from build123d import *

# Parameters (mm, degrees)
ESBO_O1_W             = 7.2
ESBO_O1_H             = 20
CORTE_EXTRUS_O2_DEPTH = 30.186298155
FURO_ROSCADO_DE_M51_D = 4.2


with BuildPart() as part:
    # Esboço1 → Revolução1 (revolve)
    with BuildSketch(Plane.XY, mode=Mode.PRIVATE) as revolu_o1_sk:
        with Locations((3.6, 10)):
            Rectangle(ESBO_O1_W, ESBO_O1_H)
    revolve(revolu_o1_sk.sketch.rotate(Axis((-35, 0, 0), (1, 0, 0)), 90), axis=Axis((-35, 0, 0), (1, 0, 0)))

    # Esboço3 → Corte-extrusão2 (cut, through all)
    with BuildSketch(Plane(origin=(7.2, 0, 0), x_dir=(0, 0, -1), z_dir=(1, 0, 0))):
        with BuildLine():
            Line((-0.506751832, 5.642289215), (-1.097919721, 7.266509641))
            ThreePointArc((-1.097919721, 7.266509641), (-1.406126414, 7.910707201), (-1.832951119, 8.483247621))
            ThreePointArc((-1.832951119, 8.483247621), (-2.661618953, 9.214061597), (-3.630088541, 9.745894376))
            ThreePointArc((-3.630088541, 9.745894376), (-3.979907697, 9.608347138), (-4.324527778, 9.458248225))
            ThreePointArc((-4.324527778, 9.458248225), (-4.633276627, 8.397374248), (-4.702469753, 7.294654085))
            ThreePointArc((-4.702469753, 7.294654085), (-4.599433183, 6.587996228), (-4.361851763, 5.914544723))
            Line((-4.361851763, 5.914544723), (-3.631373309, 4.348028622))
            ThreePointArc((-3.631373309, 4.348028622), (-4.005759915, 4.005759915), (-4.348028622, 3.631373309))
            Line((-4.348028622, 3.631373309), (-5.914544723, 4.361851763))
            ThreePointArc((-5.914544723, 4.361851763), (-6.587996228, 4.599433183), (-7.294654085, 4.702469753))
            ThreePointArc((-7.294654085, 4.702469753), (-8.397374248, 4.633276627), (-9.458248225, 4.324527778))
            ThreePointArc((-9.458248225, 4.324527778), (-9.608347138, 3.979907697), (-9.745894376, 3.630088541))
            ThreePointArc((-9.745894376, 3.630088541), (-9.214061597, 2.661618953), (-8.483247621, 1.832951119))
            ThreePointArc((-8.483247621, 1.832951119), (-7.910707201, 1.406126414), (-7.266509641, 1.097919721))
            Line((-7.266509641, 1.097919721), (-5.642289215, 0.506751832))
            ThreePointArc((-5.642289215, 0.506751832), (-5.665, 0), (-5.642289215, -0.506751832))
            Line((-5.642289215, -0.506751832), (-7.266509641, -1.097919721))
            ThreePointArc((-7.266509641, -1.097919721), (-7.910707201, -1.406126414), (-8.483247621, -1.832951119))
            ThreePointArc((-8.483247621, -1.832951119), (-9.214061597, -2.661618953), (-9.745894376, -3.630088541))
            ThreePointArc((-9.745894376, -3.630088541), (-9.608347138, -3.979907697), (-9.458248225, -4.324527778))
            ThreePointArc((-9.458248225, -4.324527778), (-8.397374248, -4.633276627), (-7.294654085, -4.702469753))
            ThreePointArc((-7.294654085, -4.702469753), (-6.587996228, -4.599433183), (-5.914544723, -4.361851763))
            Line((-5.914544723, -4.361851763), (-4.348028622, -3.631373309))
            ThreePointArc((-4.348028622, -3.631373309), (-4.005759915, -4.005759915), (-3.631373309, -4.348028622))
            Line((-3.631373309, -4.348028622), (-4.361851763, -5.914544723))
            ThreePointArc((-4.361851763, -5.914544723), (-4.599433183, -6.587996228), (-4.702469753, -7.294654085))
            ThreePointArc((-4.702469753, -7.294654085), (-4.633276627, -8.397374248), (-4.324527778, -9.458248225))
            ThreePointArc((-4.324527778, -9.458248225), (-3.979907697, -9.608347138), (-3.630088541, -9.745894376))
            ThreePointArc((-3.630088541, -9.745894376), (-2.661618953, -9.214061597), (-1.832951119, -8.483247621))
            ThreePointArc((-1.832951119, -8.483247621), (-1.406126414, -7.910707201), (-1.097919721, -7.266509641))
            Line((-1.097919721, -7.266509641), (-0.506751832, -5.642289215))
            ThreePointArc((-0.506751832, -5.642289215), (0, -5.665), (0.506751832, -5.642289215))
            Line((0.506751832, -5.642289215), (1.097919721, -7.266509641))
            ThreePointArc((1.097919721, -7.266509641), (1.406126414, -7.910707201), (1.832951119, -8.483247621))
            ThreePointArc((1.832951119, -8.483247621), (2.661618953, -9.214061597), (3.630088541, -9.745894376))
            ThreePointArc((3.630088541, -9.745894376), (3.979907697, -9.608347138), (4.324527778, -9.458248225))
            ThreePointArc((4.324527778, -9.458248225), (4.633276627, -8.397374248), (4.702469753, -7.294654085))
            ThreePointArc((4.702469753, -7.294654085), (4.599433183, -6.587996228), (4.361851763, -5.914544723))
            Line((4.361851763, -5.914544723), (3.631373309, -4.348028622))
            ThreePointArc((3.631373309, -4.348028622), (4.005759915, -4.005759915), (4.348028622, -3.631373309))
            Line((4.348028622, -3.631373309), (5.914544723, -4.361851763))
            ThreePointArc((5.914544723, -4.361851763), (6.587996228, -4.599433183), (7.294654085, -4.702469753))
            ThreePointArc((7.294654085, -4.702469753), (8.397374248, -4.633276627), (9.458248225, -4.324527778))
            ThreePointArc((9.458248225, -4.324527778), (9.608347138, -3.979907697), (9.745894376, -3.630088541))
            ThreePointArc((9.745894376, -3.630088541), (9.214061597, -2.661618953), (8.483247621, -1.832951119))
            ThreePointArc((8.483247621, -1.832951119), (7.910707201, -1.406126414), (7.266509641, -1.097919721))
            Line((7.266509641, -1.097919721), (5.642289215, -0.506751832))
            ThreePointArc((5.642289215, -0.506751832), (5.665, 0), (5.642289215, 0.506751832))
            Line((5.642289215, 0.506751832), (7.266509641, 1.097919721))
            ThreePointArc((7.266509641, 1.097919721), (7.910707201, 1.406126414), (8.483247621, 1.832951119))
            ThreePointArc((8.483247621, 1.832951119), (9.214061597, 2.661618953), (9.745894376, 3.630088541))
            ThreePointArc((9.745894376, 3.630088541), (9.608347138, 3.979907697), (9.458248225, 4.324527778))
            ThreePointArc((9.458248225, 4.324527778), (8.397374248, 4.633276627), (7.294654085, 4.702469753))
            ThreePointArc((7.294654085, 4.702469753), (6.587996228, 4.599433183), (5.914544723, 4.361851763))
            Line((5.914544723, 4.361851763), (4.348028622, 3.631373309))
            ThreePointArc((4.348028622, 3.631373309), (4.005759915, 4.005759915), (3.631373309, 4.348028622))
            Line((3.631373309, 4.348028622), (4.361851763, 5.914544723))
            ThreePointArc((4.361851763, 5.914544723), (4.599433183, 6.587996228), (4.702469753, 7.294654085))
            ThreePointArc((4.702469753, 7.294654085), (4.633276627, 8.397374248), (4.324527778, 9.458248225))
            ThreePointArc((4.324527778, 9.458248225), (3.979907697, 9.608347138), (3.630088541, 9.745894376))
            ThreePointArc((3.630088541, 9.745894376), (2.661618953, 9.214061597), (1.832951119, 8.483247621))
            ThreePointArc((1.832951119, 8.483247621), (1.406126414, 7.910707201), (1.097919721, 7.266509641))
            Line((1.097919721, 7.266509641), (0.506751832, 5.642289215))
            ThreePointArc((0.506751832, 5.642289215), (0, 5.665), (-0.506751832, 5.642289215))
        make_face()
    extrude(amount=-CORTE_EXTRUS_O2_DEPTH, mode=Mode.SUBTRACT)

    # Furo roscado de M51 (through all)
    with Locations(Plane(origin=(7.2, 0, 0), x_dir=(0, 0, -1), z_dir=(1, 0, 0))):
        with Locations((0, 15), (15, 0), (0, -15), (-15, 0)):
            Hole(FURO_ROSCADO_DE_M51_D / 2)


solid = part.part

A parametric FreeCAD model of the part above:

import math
import FreeCAD as App
import Part
import Sketcher
from FreeCAD import Vector
Q = App.Units.Quantity


def add_polygon(sketch, points):
    """Adds a closed chain of lines whose ends are joined by coincident constraints."""
    first, n = sketch.GeometryCount, len(points)
    for a, b in zip(points, points[1:] + points[:1]):
        sketch.addGeometry(Part.LineSegment(App.Vector(*a, 0), App.Vector(*b, 0)), False)
    for i in range(n):
        sketch.addConstraint(Sketcher.Constraint("Coincident", first + i, 2, first + (i + 1) % n, 1))

doc = App.newDocument("Part")
body = doc.addObject("PartDesign::Body", "Body")

# Sketch on XY plane
sketch1 = body.newObject("Sketcher::SketchObject", "Sketch")
sketch1.AttachmentSupport = (doc.getObject("XY_Plane"), [""])
sketch1.MapMode = "FlatFace"
add_polygon(sketch1, [(0, 20), (0, 0), (7, 0), (7, 20)])  # lines 0-3
sketch1.addConstraint(Sketcher.Constraint("Vertical", 0))
sketch1.addConstraint(Sketcher.Constraint("Horizontal", 1))
sketch1.addConstraint(Sketcher.Constraint("Vertical", 2))
sketch1.addConstraint(Sketcher.Constraint("Horizontal", 3))
sketch1.addConstraint(Sketcher.Constraint("Coincident", 0, 2, -1, 1))
sketch1.addConstraint(Sketcher.Constraint("DistanceY", 0, 2, 0, 1, 20.0))
sketch1.addConstraint(Sketcher.Constraint("DistanceX", 1, 1, 1, 2, 7.2))
revolution = body.newObject("PartDesign::Revolution", "Revolution")
revolution.Profile = sketch1
revolution.ReferenceAxis = (sketch1, ["H_Axis"])
revolution.Angle = 360

# Sketch on YZ plane
sketch2 = body.newObject("Sketcher::SketchObject", "Sketch001")
sketch2.AttachmentSupport = (doc.getObject("YZ_Plane"), [""])
sketch2.MapMode = "FlatFace"
sketch2.AttachmentOffset = App.Placement(Vector(0, 0, 7.2), App.Rotation())
sketch2.addGeometry(Part.LineSegment(Vector(5.6, 0.5, 0), Vector(7.3, 1.1, 0)), False)
sketch2.addGeometry(Part.ArcOfCircle(Part.Circle(Vector(6, 4.6, 0), Vector(0, 0, 1), 3.7), math.radians(-70), math.radians(-48)), False)
sketch2.addGeometry(Part.ArcOfCircle(Part.Circle(Vector(5.1, 5.5, 0), Vector(0, 0, 1), 5), math.radians(-48), math.radians(-22)), False)
sketch2.addGeometry(Part.ArcOfCircle(Part.Circle(Vector(0, 0, 0), Vector(0, 0, 1), 10.4), math.radians(20.43), math.radians(24.57)), False)
sketch2.addGeometry(Part.ArcOfCircle(Part.Circle(Vector(7.5, -0.3, 0), Vector(0, 0, 1), 5), math.radians(67), math.radians(93)), False)
sketch2.addGeometry(Part.ArcOfCircle(Part.Circle(Vector(7.5, 1, 0), Vector(0, 0, 1), 3.7), math.radians(93), math.radians(115)), False)
sketch2.addGeometry(Part.LineSegment(Vector(5.9, 4.4, 0), Vector(4.3, 3.6, 0)), False)
sketch2.addGeometry(Part.ArcOfCircle(Part.Circle(Vector(0, 0, 0), Vector(0, 0, 1), 5.7), math.radians(39.87), math.radians(50.13)), False)
sketch2.addGeometry(Part.LineSegment(Vector(3.6, 4.3, 0), Vector(4.4, 5.9, 0)), False)
sketch2.addGeometry(Part.ArcOfCircle(Part.Circle(Vector(1, 7.5, 0), Vector(0, 0, 1), 3.7), math.radians(-25), math.radians(-3)), False)
sketch2.addGeometry(Part.ArcOfCircle(Part.Circle(Vector(-0.3, 7.5, 0), Vector(0, 0, 1), 5), math.radians(-3), math.radians(23)), False)
sketch2.addGeometry(Part.ArcOfCircle(Part.Circle(Vector(0, 0, 0), Vector(0, 0, 1), 10.4), math.radians(65.43), math.radians(69.57)), False)
sketch2.addGeometry(Part.ArcOfCircle(Part.Circle(Vector(5.5, 5.1, 0), Vector(0, 0, 1), 5), math.radians(112), math.radians(138)), False)
sketch2.addGeometry(Part.ArcOfCircle(Part.Circle(Vector(4.6, 6, 0), Vector(0, 0, 1), 3.7), math.radians(138), math.radians(160)), False)
sketch2.addGeometry(Part.LineSegment(Vector(1.1, 7.3, 0), Vector(0.5, 5.6, 0)), False)
sketch2.addGeometry(Part.ArcOfCircle(Part.Circle(Vector(0, 0, 0), Vector(0, 0, 1), 5.7), math.radians(84.87), math.radians(95.13)), False)
sketch2.addGeometry(Part.LineSegment(Vector(-0.5, 5.6, 0), Vector(-1.1, 7.3, 0)), False)
sketch2.addGeometry(Part.ArcOfCircle(Part.Circle(Vector(-4.6, 6, 0), Vector(0, 0, 1), 3.7), math.radians(20), math.radians(42)), False)
sketch2.addGeometry(Part.ArcOfCircle(Part.Circle(Vector(-5.5, 5.1, 0), Vector(0, 0, 1), 5), math.radians(42), math.radians(68)), False)
sketch2.addGeometry(Part.ArcOfCircle(Part.Circle(Vector(0, 0, 0), Vector(0, 0, 1), 10.4), math.radians(110.43), math.radians(114.57)), False)
sketch2.addGeometry(Part.ArcOfCircle(Part.Circle(Vector(0.3, 7.5, 0), Vector(0, 0, 1), 5), math.radians(157), math.radians(183)), False)
sketch2.addGeometry(Part.ArcOfCircle(Part.Circle(Vector(-1, 7.5, 0), Vector(0, 0, 1), 3.7), math.radians(-177), math.radians(-155)), False)
sketch2.addGeometry(Part.LineSegment(Vector(-4.4, 5.9, 0), Vector(-3.6, 4.3, 0)), False)
sketch2.addGeometry(Part.ArcOfCircle(Part.Circle(Vector(0, 0, 0), Vector(0, 0, 1), 5.7), math.radians(129.87), math.radians(140.13)), False)
sketch2.addGeometry(Part.LineSegment(Vector(-4.3, 3.6, 0), Vector(-5.9, 4.4, 0)), False)
sketch2.addGeometry(Part.ArcOfCircle(Part.Circle(Vector(-7.5, 1, 0), Vector(0, 0, 1), 3.7), math.radians(65), math.radians(87)), False)
sketch2.addGeometry(Part.ArcOfCircle(Part.Circle(Vector(-7.5, -0.3, 0), Vector(0, 0, 1), 5), math.radians(87), math.radians(113)), False)
sketch2.addGeometry(Part.ArcOfCircle(Part.Circle(Vector(0, 0, 0), Vector(0, 0, 1), 10.4), math.radians(155.43), math.radians(159.57)), False)
sketch2.addGeometry(Part.ArcOfCircle(Part.Circle(Vector(-5.1, 5.5, 0), Vector(0, 0, 1), 5), math.radians(-158), math.radians(-132)), False)
sketch2.addGeometry(Part.ArcOfCircle(Part.Circle(Vector(-6, 4.6, 0), Vector(0, 0, 1), 3.7), math.radians(-132), math.radians(-110)), False)
sketch2.addGeometry(Part.LineSegment(Vector(-7.3, 1.1, 0), Vector(-5.6, 0.5, 0)), False)
sketch2.addGeometry(Part.ArcOfCircle(Part.Circle(Vector(0, 0, 0), Vector(0, 0, 1), 5.7), math.radians(174.87), math.radians(185.13)), False)
sketch2.addGeometry(Part.LineSegment(Vector(-5.6, -0.5, 0), Vector(-7.3, -1.1, 0)), False)
sketch2.addGeometry(Part.ArcOfCircle(Part.Circle(Vector(-6, -4.6, 0), Vector(0, 0, 1), 3.7), math.radians(110), math.radians(132)), False)
sketch2.addGeometry(Part.ArcOfCircle(Part.Circle(Vector(-5.1, -5.5, 0), Vector(0, 0, 1), 5), math.radians(132), math.radians(158)), False)
sketch2.addGeometry(Part.ArcOfCircle(Part.Circle(Vector(0, 0, 0), Vector(0, 0, 1), 10.4), math.radians(-159.57), math.radians(-155.43)), False)
sketch2.addGeometry(Part.ArcOfCircle(Part.Circle(Vector(-7.5, 0.3, 0), Vector(0, 0, 1), 5), math.radians(-113), math.radians(-87)), False)
sketch2.addGeometry(Part.ArcOfCircle(Part.Circle(Vector(-7.5, -1, 0), Vector(0, 0, 1), 3.7), math.radians(-87), math.radians(-65)), False)
sketch2.addGeometry(Part.LineSegment(Vector(-5.9, -4.4, 0), Vector(-4.3, -3.6, 0)), False)
sketch2.addGeometry(Part.ArcOfCircle(Part.Circle(Vector(0, 0, 0), Vector(0, 0, 1), 5.7), math.radians(-140.13), math.radians(-129.87)), False)
sketch2.addGeometry(Part.LineSegment(Vector(-3.6, -4.3, 0), Vector(-4.4, -5.9, 0)), False)
sketch2.addGeometry(Part.ArcOfCircle(Part.Circle(Vector(-1, -7.5, 0), Vector(0, 0, 1), 3.7), math.radians(155), math.radians(177)), False)
sketch2.addGeometry(Part.ArcOfCircle(Part.Circle(Vector(0.3, -7.5, 0), Vector(0, 0, 1), 5), math.radians(177), math.radians(203)), False)
sketch2.addGeometry(Part.ArcOfCircle(Part.Circle(Vector(0, 0, 0), Vector(0, 0, 1), 10.4), math.radians(-114.57), math.radians(-110.43)), False)
sketch2.addGeometry(Part.ArcOfCircle(Part.Circle(Vector(-5.5, -5.1, 0), Vector(0, 0, 1), 5), math.radians(-68), math.radians(-42)), False)
sketch2.addGeometry(Part.ArcOfCircle(Part.Circle(Vector(-4.6, -6, 0), Vector(0, 0, 1), 3.7), math.radians(-42), math.radians(-20)), False)
sketch2.addGeometry(Part.LineSegment(Vector(-1.1, -7.3, 0), Vector(-0.5, -5.6, 0)), False)
sketch2.addGeometry(Part.ArcOfCircle(Part.Circle(Vector(0, 0, 0), Vector(0, 0, 1), 5.7), math.radians(-95.13), math.radians(-84.87)), False)
sketch2.addGeometry(Part.LineSegment(Vector(0.5, -5.6, 0), Vector(1.1, -7.3, 0)), False)
sketch2.addGeometry(Part.ArcOfCircle(Part.Circle(Vector(4.6, -6, 0), Vector(0, 0, 1), 3.7), math.radians(-160), math.radians(-138)), False)
sketch2.addGeometry(Part.ArcOfCircle(Part.Circle(Vector(5.5, -5.1, 0), Vector(0, 0, 1), 5), math.radians(-138), math.radians(-112)), False)
sketch2.addGeometry(Part.ArcOfCircle(Part.Circle(Vector(0, 0, 0), Vector(0, 0, 1), 10.4), math.radians(-69.57), math.radians(-65.43)), False)
sketch2.addGeometry(Part.ArcOfCircle(Part.Circle(Vector(-0.3, -7.5, 0), Vector(0, 0, 1), 5), math.radians(-23), math.radians(3)), False)
sketch2.addGeometry(Part.ArcOfCircle(Part.Circle(Vector(1, -7.5, 0), Vector(0, 0, 1), 3.7), math.radians(3), math.radians(25)), False)
sketch2.addGeometry(Part.LineSegment(Vector(4.4, -5.9, 0), Vector(3.6, -4.3, 0)), False)
sketch2.addGeometry(Part.ArcOfCircle(Part.Circle(Vector(0, 0, 0), Vector(0, 0, 1), 5.7), math.radians(-50.13), math.radians(-39.87)), False)
sketch2.addGeometry(Part.LineSegment(Vector(4.3, -3.6, 0), Vector(5.9, -4.4, 0)), False)
sketch2.addGeometry(Part.ArcOfCircle(Part.Circle(Vector(7.5, -1, 0), Vector(0, 0, 1), 3.7), math.radians(-115), math.radians(-93)), False)
sketch2.addGeometry(Part.ArcOfCircle(Part.Circle(Vector(7.5, 0.3, 0), Vector(0, 0, 1), 5), math.radians(-93), math.radians(-67)), False)
sketch2.addGeometry(Part.ArcOfCircle(Part.Circle(Vector(0, 0, 0), Vector(0, 0, 1), 10.4), math.radians(-24.57), math.radians(-20.43)), False)
sketch2.addGeometry(Part.ArcOfCircle(Part.Circle(Vector(5.1, -5.5, 0), Vector(0, 0, 1), 5), math.radians(22), math.radians(48)), False)
sketch2.addGeometry(Part.ArcOfCircle(Part.Circle(Vector(6, -4.6, 0), Vector(0, 0, 1), 3.7), math.radians(48), math.radians(70)), False)
sketch2.addGeometry(Part.LineSegment(Vector(7.3, -1.1, 0), Vector(5.6, -0.5, 0)), False)
sketch2.addGeometry(Part.ArcOfCircle(Part.Circle(Vector(0, 0, 0), Vector(0, 0, 1), 5.7), math.radians(-5.13), math.radians(5.13)), False)
sketch2.addConstraint(Sketcher.Constraint("Tangent", 0, 2, 1, 1))
sketch2.addConstraint(Sketcher.Constraint("Tangent", 1, 2, 2, 1))
sketch2.addConstraint(Sketcher.Constraint("Coincident", 2, 2, 3, 1))
sketch2.addConstraint(Sketcher.Constraint("Coincident", 3, 2, 4, 1))
sketch2.addConstraint(Sketcher.Constraint("Tangent", 4, 2, 5, 1))
sketch2.addConstraint(Sketcher.Constraint("Tangent", 5, 2, 6, 1))
sketch2.addConstraint(Sketcher.Constraint("Coincident", 6, 2, 7, 1))
sketch2.addConstraint(Sketcher.Constraint("Coincident", 7, 2, 8, 1))
sketch2.addConstraint(Sketcher.Constraint("Tangent", 8, 2, 9, 1))
sketch2.addConstraint(Sketcher.Constraint("Tangent", 9, 2, 10, 1))
sketch2.addConstraint(Sketcher.Constraint("Coincident", 10, 2, 11, 1))
sketch2.addConstraint(Sketcher.Constraint("Coincident", 11, 2, 12, 1))
sketch2.addConstraint(Sketcher.Constraint("Tangent", 12, 2, 13, 1))
sketch2.addConstraint(Sketcher.Constraint("Tangent", 13, 2, 14, 1))
sketch2.addConstraint(Sketcher.Constraint("Coincident", 14, 2, 15, 1))
sketch2.addConstraint(Sketcher.Constraint("Coincident", 15, 2, 16, 1))
sketch2.addConstraint(Sketcher.Constraint("Tangent", 16, 2, 17, 1))
sketch2.addConstraint(Sketcher.Constraint("Tangent", 17, 2, 18, 1))
sketch2.addConstraint(Sketcher.Constraint("Coincident", 18, 2, 19, 1))
sketch2.addConstraint(Sketcher.Constraint("Coincident", 19, 2, 20, 1))
sketch2.addConstraint(Sketcher.Constraint("Tangent", 20, 2, 21, 1))
sketch2.addConstraint(Sketcher.Constraint("Tangent", 21, 2, 22, 1))
sketch2.addConstraint(Sketcher.Constraint("Coincident", 22, 2, 23, 1))
sketch2.addConstraint(Sketcher.Constraint("Coincident", 23, 2, 24, 1))
sketch2.addConstraint(Sketcher.Constraint("Tangent", 24, 2, 25, 1))
sketch2.addConstraint(Sketcher.Constraint("Tangent", 25, 2, 26, 1))
sketch2.addConstraint(Sketcher.Constraint("Coincident", 26, 2, 27, 1))
sketch2.addConstraint(Sketcher.Constraint("Coincident", 27, 2, 28, 1))
sketch2.addConstraint(Sketcher.Constraint("Tangent", 28, 2, 29, 1))
sketch2.addConstraint(Sketcher.Constraint("Tangent", 29, 2, 30, 1))
sketch2.addConstraint(Sketcher.Constraint("Coincident", 30, 2, 31, 1))
sketch2.addConstraint(Sketcher.Constraint("Coincident", 31, 2, 32, 1))
sketch2.addConstraint(Sketcher.Constraint("Tangent", 32, 2, 33, 1))
sketch2.addConstraint(Sketcher.Constraint("Tangent", 33, 2, 34, 1))
sketch2.addConstraint(Sketcher.Constraint("Coincident", 34, 2, 35, 1))
sketch2.addConstraint(Sketcher.Constraint("Coincident", 35, 2, 36, 1))
sketch2.addConstraint(Sketcher.Constraint("Tangent", 36, 2, 37, 1))
sketch2.addConstraint(Sketcher.Constraint("Tangent", 37, 2, 38, 1))
sketch2.addConstraint(Sketcher.Constraint("Coincident", 38, 2, 39, 1))
sketch2.addConstraint(Sketcher.Constraint("Coincident", 39, 2, 40, 1))
sketch2.addConstraint(Sketcher.Constraint("Tangent", 40, 2, 41, 1))
sketch2.addConstraint(Sketcher.Constraint("Tangent", 41, 2, 42, 1))
sketch2.addConstraint(Sketcher.Constraint("Coincident", 42, 2, 43, 1))
sketch2.addConstraint(Sketcher.Constraint("Coincident", 43, 2, 44, 1))
sketch2.addConstraint(Sketcher.Constraint("Tangent", 44, 2, 45, 1))
sketch2.addConstraint(Sketcher.Constraint("Tangent", 45, 2, 46, 1))
sketch2.addConstraint(Sketcher.Constraint("Coincident", 46, 2, 47, 1))
sketch2.addConstraint(Sketcher.Constraint("Coincident", 47, 2, 48, 1))
sketch2.addConstraint(Sketcher.Constraint("Tangent", 48, 2, 49, 1))
sketch2.addConstraint(Sketcher.Constraint("Tangent", 49, 2, 50, 1))
sketch2.addConstraint(Sketcher.Constraint("Coincident", 50, 2, 51, 1))
sketch2.addConstraint(Sketcher.Constraint("Coincident", 51, 2, 52, 1))
sketch2.addConstraint(Sketcher.Constraint("Tangent", 52, 2, 53, 1))
sketch2.addConstraint(Sketcher.Constraint("Tangent", 53, 2, 54, 1))
sketch2.addConstraint(Sketcher.Constraint("Coincident", 54, 2, 55, 1))
sketch2.addConstraint(Sketcher.Constraint("Coincident", 55, 2, 56, 1))
sketch2.addConstraint(Sketcher.Constraint("Tangent", 56, 2, 57, 1))
sketch2.addConstraint(Sketcher.Constraint("Tangent", 57, 2, 58, 1))
sketch2.addConstraint(Sketcher.Constraint("Coincident", 58, 2, 59, 1))
sketch2.addConstraint(Sketcher.Constraint("Coincident", 59, 2, 60, 1))
sketch2.addConstraint(Sketcher.Constraint("Tangent", 60, 2, 61, 1))
sketch2.addConstraint(Sketcher.Constraint("Tangent", 61, 2, 62, 1))
sketch2.addConstraint(Sketcher.Constraint("Coincident", 62, 2, 63, 1))
sketch2.addConstraint(Sketcher.Constraint("Coincident", 63, 2, 0, 1))
sketch2.addConstraint(Sketcher.Constraint("Coincident", 3, 3, -1, 1))
sketch2.addConstraint(Sketcher.Constraint("Coincident", 7, 3, -1, 1))
sketch2.addConstraint(Sketcher.Constraint("Coincident", 11, 3, -1, 1))
sketch2.addConstraint(Sketcher.Constraint("Coincident", 15, 3, -1, 1))
sketch2.addConstraint(Sketcher.Constraint("Coincident", 19, 3, -1, 1))
sketch2.addConstraint(Sketcher.Constraint("Coincident", 23, 3, -1, 1))
sketch2.addConstraint(Sketcher.Constraint("Coincident", 27, 3, -1, 1))
sketch2.addConstraint(Sketcher.Constraint("Coincident", 31, 3, -1, 1))
sketch2.addConstraint(Sketcher.Constraint("Coincident", 35, 3, -1, 1))
sketch2.addConstraint(Sketcher.Constraint("Coincident", 39, 3, -1, 1))
sketch2.addConstraint(Sketcher.Constraint("Coincident", 43, 3, -1, 1))
sketch2.addConstraint(Sketcher.Constraint("Coincident", 47, 3, -1, 1))
sketch2.addConstraint(Sketcher.Constraint("Coincident", 51, 3, -1, 1))
sketch2.addConstraint(Sketcher.Constraint("Coincident", 55, 3, -1, 1))
sketch2.addConstraint(Sketcher.Constraint("Coincident", 59, 3, -1, 1))
sketch2.addConstraint(Sketcher.Constraint("Coincident", 63, 3, -1, 1))
sketch2.addConstraint(Sketcher.Constraint("Equal", 2, 4))
sketch2.addConstraint(Sketcher.Constraint("Equal", 1, 5))
sketch2.addConstraint(Sketcher.Constraint("Equal", 5, 9))
sketch2.addConstraint(Sketcher.Constraint("Equal", 4, 10))
sketch2.addConstraint(Sketcher.Constraint("Equal", 3, 11))
sketch2.addConstraint(Sketcher.Constraint("Equal", 10, 12))
sketch2.addConstraint(Sketcher.Constraint("Equal", 9, 13))
sketch2.addConstraint(Sketcher.Constraint("Equal", 7, 15))
sketch2.addConstraint(Sketcher.Constraint("Equal", 13, 17))
sketch2.addConstraint(Sketcher.Constraint("Equal", 12, 18))
sketch2.addConstraint(Sketcher.Constraint("Equal", 11, 19))
sketch2.addConstraint(Sketcher.Constraint("Equal", 18, 20))
sketch2.addConstraint(Sketcher.Constraint("Equal", 17, 21))
sketch2.addConstraint(Sketcher.Constraint("Equal", 15, 23))
sketch2.addConstraint(Sketcher.Constraint("Equal", 21, 25))
sketch2.addConstraint(Sketcher.Constraint("Equal", 20, 26))
sketch2.addConstraint(Sketcher.Constraint("Equal", 19, 27))
sketch2.addConstraint(Sketcher.Constraint("Equal", 26, 28))
sketch2.addConstraint(Sketcher.Constraint("Equal", 25, 29))
sketch2.addConstraint(Sketcher.Constraint("Equal", 23, 31))
sketch2.addConstraint(Sketcher.Constraint("Equal", 29, 33))
sketch2.addConstraint(Sketcher.Constraint("Equal", 28, 34))
sketch2.addConstraint(Sketcher.Constraint("Equal", 27, 35))
sketch2.addConstraint(Sketcher.Constraint("Equal", 34, 36))
sketch2.addConstraint(Sketcher.Constraint("Equal", 33, 37))
sketch2.addConstraint(Sketcher.Constraint("Equal", 31, 39))
sketch2.addConstraint(Sketcher.Constraint("Equal", 37, 41))
sketch2.addConstraint(Sketcher.Constraint("Equal", 36, 42))
sketch2.addConstraint(Sketcher.Constraint("Equal", 35, 43))
sketch2.addConstraint(Sketcher.Constraint("Equal", 42, 44))
sketch2.addConstraint(Sketcher.Constraint("Equal", 41, 45))
sketch2.addConstraint(Sketcher.Constraint("Equal", 39, 47))
sketch2.addConstraint(Sketcher.Constraint("Equal", 45, 49))
sketch2.addConstraint(Sketcher.Constraint("Equal", 44, 50))
sketch2.addConstraint(Sketcher.Constraint("Equal", 43, 51))
sketch2.addConstraint(Sketcher.Constraint("Equal", 50, 52))
sketch2.addConstraint(Sketcher.Constraint("Equal", 49, 53))
sketch2.addConstraint(Sketcher.Constraint("Equal", 47, 55))
sketch2.addConstraint(Sketcher.Constraint("Equal", 53, 57))
sketch2.addConstraint(Sketcher.Constraint("Equal", 52, 58))
sketch2.addConstraint(Sketcher.Constraint("Equal", 51, 59))
sketch2.addConstraint(Sketcher.Constraint("Equal", 58, 60))
sketch2.addConstraint(Sketcher.Constraint("Equal", 57, 61))
sketch2.addConstraint(Sketcher.Constraint("Equal", 55, 63))
sketch2.addConstraint(Sketcher.Constraint("Symmetric", 1, 3, 33, 3, -1, 1))
sketch2.addConstraint(Sketcher.Constraint("Symmetric", 4, 3, 36, 3, -1, 1))
sketch2.addConstraint(Sketcher.Constraint("Symmetric", 9, 3, 41, 3, -1, 1))
sketch2.addConstraint(Sketcher.Constraint("Symmetric", 12, 3, 44, 3, -1, 1))
sketch2.addConstraint(Sketcher.Constraint("Symmetric", 17, 3, 49, 3, -1, 1))
sketch2.addConstraint(Sketcher.Constraint("Symmetric", 20, 3, 52, 3, -1, 1))
sketch2.addConstraint(Sketcher.Constraint("Symmetric", 25, 3, 57, 3, -1, 1))
sketch2.addConstraint(Sketcher.Constraint("Symmetric", 28, 3, 60, 3, -1, 1))
sketch2.addConstraint(Sketcher.Constraint("Symmetric", 5, 2, 37, 2, -1, 1))
sketch2.addConstraint(Sketcher.Constraint("Symmetric", 13, 2, 45, 2, -1, 1))
sketch2.addConstraint(Sketcher.Constraint("Symmetric", 21, 2, 53, 2, -1, 1))
sketch2.addConstraint(Sketcher.Constraint("Symmetric", 29, 2, 61, 2, -1, 1))
sketch2.addConstraint(Sketcher.Constraint("Symmetric", 13, 3, 17, 3, -2))
sketch2.addConstraint(Sketcher.Constraint("Symmetric", 10, 3, 20, 3, -2))
sketch2.addConstraint(Sketcher.Constraint("Symmetric", 5, 3, 25, 3, -2))
sketch2.addConstraint(Sketcher.Constraint("Symmetric", 2, 3, 28, 3, -2))
sketch2.addConstraint(Sketcher.Constraint("Symmetric", 8, 2, 21, 2, -2))
sketch2.addConstraint(Sketcher.Constraint("Symmetric", 0, 2, 29, 2, -2))
sketch2.addConstraint(Sketcher.Constraint("Perpendicular", 0, 16))
sketch2.addConstraint(Sketcher.Constraint("Perpendicular", 6, 22))
sketch2.addConstraint(Sketcher.Constraint("Perpendicular", 8, 24))
sketch2.addConstraint(Sketcher.Constraint("Perpendicular", 14, 30))
sketch2.addConstraint(Sketcher.Constraint("Perpendicular", 16, 32))
sketch2.addConstraint(Sketcher.Constraint("Perpendicular", 24, 40))
sketch2.addConstraint(Sketcher.Constraint("Perpendicular", 32, 48))
sketch2.addConstraint(Sketcher.Constraint("Perpendicular", 40, 56))
sketch2.addConstraint(Sketcher.Constraint("Horizontal", 12, 3, 18, 3))
sketch2.addConstraint(Sketcher.Constraint("Horizontal", 4, 3, 26, 3))
sketch2.addConstraint(Sketcher.Constraint("Horizontal", 44, 3, 50, 3))
sketch2.addConstraint(Sketcher.Constraint("Horizontal", 42, 3, 52, 3))
sketch2.addConstraint(Sketcher.Constraint("Horizontal", 36, 3, 58, 3))
sketch2.addConstraint(Sketcher.Constraint("Horizontal", 34, 3, 60, 3))
sketch2.addConstraint(Sketcher.Constraint("Equal", 0, 6))
sketch2.addConstraint(Sketcher.Constraint("Equal", 6, 8))
sketch2.addConstraint(Sketcher.Constraint("Equal", 8, 14))
sketch2.addConstraint(Sketcher.Constraint("Radius", 3, 10.4))
sketch2.addConstraint(Sketcher.Constraint("Angle", 0, Q("20 deg")))
sketch2.addConstraint(Sketcher.Constraint("Angle", 6, Q("-155 deg")))
sketch2.addConstraint(Sketcher.Constraint("Radius", 1, 3.68))
sketch2.addConstraint(Sketcher.Constraint("Radius", 2, 5.02))
sketch2.addConstraint(Sketcher.Constraint("Radius", 7, 5.665))
sketch2.addConstraint(Sketcher.Constraint("Distance", 0, 1.728459))
sketch2.addConstraint(Sketcher.Constraint("DistanceY", -1, 1, 1, 3, 4.555989))
sketch2.addConstraint(Sketcher.Constraint("DistanceY", -1, 1, 2, 3, 5.547529))
sketch2.addConstraint(Sketcher.Constraint("DistanceX", -1, 1, 4, 3, 7.533549))
sketch2.addConstraint(Sketcher.Constraint("DistanceX", -1, 1, 5, 3, 7.46978))
sketch2.addConstraint(Sketcher.Constraint("DistanceX", -1, 1, 9, 3, 1.026639))
sketch2.addConstraint(Sketcher.Constraint("DistanceY", -1, 1, 10, 3, 7.533549))
sketch2.addConstraint(Sketcher.Constraint("DistanceX", -1, 1, 12, 3, 5.547529))
sketch2.addConstraint(Sketcher.Constraint("DistanceX", -1, 1, 13, 3, 4.555989))
pocket1 = body.newObject("PartDesign::Pocket", "Pocket")
pocket1.Profile = sketch2
pocket1.Type = "ThroughAll"

# Sketch on YZ plane
sketch3 = body.newObject("Sketcher::SketchObject", "Sketch002")
sketch3.AttachmentSupport = (doc.getObject("YZ_Plane"), [""])
sketch3.MapMode = "FlatFace"
sketch3.AttachmentOffset = App.Placement(Vector(0, 0, 7.2), App.Rotation())
sketch3.addGeometry(Part.Circle(Vector(15, 0, 0), Vector(0, 0, 1), 2.1), False)
sketch3.addGeometry(Part.Circle(Vector(0, -15, 0), Vector(0, 0, 1), 2.1), False)
sketch3.addGeometry(Part.Circle(Vector(-15, 0, 0), Vector(0, 0, 1), 2.1), False)
sketch3.addGeometry(Part.Circle(Vector(0, 15, 0), Vector(0, 0, 1), 2.1), False)
sketch3.addConstraint(Sketcher.Constraint("Equal", 0, 1))
sketch3.addConstraint(Sketcher.Constraint("Equal", 1, 2))
sketch3.addConstraint(Sketcher.Constraint("Equal", 2, 3))
sketch3.addConstraint(Sketcher.Constraint("Symmetric", 0, 3, 2, 3, -1, 1))
sketch3.addConstraint(Sketcher.Constraint("Symmetric", 1, 3, 3, 3, -1, 1))
sketch3.addConstraint(Sketcher.Constraint("PointOnObject", 0, 3, -1))
sketch3.addConstraint(Sketcher.Constraint("PointOnObject", 1, 3, -2))
sketch3.addConstraint(Sketcher.Constraint("Diameter", 0, 4.2))
sketch3.addConstraint(Sketcher.Constraint("DistanceX", -1, 1, 0, 3, 15.0))
sketch3.addConstraint(Sketcher.Constraint("DistanceY", 1, 3, -1, 1, 15.0))
doc.recompute()
hole = body.newObject("PartDesign::Hole", "Hole")
hole.Profile = sketch3
hole.ThreadType = "None"
hole.Diameter = 4.2
hole.DepthType = "ThroughAll"

doc.recompute()
